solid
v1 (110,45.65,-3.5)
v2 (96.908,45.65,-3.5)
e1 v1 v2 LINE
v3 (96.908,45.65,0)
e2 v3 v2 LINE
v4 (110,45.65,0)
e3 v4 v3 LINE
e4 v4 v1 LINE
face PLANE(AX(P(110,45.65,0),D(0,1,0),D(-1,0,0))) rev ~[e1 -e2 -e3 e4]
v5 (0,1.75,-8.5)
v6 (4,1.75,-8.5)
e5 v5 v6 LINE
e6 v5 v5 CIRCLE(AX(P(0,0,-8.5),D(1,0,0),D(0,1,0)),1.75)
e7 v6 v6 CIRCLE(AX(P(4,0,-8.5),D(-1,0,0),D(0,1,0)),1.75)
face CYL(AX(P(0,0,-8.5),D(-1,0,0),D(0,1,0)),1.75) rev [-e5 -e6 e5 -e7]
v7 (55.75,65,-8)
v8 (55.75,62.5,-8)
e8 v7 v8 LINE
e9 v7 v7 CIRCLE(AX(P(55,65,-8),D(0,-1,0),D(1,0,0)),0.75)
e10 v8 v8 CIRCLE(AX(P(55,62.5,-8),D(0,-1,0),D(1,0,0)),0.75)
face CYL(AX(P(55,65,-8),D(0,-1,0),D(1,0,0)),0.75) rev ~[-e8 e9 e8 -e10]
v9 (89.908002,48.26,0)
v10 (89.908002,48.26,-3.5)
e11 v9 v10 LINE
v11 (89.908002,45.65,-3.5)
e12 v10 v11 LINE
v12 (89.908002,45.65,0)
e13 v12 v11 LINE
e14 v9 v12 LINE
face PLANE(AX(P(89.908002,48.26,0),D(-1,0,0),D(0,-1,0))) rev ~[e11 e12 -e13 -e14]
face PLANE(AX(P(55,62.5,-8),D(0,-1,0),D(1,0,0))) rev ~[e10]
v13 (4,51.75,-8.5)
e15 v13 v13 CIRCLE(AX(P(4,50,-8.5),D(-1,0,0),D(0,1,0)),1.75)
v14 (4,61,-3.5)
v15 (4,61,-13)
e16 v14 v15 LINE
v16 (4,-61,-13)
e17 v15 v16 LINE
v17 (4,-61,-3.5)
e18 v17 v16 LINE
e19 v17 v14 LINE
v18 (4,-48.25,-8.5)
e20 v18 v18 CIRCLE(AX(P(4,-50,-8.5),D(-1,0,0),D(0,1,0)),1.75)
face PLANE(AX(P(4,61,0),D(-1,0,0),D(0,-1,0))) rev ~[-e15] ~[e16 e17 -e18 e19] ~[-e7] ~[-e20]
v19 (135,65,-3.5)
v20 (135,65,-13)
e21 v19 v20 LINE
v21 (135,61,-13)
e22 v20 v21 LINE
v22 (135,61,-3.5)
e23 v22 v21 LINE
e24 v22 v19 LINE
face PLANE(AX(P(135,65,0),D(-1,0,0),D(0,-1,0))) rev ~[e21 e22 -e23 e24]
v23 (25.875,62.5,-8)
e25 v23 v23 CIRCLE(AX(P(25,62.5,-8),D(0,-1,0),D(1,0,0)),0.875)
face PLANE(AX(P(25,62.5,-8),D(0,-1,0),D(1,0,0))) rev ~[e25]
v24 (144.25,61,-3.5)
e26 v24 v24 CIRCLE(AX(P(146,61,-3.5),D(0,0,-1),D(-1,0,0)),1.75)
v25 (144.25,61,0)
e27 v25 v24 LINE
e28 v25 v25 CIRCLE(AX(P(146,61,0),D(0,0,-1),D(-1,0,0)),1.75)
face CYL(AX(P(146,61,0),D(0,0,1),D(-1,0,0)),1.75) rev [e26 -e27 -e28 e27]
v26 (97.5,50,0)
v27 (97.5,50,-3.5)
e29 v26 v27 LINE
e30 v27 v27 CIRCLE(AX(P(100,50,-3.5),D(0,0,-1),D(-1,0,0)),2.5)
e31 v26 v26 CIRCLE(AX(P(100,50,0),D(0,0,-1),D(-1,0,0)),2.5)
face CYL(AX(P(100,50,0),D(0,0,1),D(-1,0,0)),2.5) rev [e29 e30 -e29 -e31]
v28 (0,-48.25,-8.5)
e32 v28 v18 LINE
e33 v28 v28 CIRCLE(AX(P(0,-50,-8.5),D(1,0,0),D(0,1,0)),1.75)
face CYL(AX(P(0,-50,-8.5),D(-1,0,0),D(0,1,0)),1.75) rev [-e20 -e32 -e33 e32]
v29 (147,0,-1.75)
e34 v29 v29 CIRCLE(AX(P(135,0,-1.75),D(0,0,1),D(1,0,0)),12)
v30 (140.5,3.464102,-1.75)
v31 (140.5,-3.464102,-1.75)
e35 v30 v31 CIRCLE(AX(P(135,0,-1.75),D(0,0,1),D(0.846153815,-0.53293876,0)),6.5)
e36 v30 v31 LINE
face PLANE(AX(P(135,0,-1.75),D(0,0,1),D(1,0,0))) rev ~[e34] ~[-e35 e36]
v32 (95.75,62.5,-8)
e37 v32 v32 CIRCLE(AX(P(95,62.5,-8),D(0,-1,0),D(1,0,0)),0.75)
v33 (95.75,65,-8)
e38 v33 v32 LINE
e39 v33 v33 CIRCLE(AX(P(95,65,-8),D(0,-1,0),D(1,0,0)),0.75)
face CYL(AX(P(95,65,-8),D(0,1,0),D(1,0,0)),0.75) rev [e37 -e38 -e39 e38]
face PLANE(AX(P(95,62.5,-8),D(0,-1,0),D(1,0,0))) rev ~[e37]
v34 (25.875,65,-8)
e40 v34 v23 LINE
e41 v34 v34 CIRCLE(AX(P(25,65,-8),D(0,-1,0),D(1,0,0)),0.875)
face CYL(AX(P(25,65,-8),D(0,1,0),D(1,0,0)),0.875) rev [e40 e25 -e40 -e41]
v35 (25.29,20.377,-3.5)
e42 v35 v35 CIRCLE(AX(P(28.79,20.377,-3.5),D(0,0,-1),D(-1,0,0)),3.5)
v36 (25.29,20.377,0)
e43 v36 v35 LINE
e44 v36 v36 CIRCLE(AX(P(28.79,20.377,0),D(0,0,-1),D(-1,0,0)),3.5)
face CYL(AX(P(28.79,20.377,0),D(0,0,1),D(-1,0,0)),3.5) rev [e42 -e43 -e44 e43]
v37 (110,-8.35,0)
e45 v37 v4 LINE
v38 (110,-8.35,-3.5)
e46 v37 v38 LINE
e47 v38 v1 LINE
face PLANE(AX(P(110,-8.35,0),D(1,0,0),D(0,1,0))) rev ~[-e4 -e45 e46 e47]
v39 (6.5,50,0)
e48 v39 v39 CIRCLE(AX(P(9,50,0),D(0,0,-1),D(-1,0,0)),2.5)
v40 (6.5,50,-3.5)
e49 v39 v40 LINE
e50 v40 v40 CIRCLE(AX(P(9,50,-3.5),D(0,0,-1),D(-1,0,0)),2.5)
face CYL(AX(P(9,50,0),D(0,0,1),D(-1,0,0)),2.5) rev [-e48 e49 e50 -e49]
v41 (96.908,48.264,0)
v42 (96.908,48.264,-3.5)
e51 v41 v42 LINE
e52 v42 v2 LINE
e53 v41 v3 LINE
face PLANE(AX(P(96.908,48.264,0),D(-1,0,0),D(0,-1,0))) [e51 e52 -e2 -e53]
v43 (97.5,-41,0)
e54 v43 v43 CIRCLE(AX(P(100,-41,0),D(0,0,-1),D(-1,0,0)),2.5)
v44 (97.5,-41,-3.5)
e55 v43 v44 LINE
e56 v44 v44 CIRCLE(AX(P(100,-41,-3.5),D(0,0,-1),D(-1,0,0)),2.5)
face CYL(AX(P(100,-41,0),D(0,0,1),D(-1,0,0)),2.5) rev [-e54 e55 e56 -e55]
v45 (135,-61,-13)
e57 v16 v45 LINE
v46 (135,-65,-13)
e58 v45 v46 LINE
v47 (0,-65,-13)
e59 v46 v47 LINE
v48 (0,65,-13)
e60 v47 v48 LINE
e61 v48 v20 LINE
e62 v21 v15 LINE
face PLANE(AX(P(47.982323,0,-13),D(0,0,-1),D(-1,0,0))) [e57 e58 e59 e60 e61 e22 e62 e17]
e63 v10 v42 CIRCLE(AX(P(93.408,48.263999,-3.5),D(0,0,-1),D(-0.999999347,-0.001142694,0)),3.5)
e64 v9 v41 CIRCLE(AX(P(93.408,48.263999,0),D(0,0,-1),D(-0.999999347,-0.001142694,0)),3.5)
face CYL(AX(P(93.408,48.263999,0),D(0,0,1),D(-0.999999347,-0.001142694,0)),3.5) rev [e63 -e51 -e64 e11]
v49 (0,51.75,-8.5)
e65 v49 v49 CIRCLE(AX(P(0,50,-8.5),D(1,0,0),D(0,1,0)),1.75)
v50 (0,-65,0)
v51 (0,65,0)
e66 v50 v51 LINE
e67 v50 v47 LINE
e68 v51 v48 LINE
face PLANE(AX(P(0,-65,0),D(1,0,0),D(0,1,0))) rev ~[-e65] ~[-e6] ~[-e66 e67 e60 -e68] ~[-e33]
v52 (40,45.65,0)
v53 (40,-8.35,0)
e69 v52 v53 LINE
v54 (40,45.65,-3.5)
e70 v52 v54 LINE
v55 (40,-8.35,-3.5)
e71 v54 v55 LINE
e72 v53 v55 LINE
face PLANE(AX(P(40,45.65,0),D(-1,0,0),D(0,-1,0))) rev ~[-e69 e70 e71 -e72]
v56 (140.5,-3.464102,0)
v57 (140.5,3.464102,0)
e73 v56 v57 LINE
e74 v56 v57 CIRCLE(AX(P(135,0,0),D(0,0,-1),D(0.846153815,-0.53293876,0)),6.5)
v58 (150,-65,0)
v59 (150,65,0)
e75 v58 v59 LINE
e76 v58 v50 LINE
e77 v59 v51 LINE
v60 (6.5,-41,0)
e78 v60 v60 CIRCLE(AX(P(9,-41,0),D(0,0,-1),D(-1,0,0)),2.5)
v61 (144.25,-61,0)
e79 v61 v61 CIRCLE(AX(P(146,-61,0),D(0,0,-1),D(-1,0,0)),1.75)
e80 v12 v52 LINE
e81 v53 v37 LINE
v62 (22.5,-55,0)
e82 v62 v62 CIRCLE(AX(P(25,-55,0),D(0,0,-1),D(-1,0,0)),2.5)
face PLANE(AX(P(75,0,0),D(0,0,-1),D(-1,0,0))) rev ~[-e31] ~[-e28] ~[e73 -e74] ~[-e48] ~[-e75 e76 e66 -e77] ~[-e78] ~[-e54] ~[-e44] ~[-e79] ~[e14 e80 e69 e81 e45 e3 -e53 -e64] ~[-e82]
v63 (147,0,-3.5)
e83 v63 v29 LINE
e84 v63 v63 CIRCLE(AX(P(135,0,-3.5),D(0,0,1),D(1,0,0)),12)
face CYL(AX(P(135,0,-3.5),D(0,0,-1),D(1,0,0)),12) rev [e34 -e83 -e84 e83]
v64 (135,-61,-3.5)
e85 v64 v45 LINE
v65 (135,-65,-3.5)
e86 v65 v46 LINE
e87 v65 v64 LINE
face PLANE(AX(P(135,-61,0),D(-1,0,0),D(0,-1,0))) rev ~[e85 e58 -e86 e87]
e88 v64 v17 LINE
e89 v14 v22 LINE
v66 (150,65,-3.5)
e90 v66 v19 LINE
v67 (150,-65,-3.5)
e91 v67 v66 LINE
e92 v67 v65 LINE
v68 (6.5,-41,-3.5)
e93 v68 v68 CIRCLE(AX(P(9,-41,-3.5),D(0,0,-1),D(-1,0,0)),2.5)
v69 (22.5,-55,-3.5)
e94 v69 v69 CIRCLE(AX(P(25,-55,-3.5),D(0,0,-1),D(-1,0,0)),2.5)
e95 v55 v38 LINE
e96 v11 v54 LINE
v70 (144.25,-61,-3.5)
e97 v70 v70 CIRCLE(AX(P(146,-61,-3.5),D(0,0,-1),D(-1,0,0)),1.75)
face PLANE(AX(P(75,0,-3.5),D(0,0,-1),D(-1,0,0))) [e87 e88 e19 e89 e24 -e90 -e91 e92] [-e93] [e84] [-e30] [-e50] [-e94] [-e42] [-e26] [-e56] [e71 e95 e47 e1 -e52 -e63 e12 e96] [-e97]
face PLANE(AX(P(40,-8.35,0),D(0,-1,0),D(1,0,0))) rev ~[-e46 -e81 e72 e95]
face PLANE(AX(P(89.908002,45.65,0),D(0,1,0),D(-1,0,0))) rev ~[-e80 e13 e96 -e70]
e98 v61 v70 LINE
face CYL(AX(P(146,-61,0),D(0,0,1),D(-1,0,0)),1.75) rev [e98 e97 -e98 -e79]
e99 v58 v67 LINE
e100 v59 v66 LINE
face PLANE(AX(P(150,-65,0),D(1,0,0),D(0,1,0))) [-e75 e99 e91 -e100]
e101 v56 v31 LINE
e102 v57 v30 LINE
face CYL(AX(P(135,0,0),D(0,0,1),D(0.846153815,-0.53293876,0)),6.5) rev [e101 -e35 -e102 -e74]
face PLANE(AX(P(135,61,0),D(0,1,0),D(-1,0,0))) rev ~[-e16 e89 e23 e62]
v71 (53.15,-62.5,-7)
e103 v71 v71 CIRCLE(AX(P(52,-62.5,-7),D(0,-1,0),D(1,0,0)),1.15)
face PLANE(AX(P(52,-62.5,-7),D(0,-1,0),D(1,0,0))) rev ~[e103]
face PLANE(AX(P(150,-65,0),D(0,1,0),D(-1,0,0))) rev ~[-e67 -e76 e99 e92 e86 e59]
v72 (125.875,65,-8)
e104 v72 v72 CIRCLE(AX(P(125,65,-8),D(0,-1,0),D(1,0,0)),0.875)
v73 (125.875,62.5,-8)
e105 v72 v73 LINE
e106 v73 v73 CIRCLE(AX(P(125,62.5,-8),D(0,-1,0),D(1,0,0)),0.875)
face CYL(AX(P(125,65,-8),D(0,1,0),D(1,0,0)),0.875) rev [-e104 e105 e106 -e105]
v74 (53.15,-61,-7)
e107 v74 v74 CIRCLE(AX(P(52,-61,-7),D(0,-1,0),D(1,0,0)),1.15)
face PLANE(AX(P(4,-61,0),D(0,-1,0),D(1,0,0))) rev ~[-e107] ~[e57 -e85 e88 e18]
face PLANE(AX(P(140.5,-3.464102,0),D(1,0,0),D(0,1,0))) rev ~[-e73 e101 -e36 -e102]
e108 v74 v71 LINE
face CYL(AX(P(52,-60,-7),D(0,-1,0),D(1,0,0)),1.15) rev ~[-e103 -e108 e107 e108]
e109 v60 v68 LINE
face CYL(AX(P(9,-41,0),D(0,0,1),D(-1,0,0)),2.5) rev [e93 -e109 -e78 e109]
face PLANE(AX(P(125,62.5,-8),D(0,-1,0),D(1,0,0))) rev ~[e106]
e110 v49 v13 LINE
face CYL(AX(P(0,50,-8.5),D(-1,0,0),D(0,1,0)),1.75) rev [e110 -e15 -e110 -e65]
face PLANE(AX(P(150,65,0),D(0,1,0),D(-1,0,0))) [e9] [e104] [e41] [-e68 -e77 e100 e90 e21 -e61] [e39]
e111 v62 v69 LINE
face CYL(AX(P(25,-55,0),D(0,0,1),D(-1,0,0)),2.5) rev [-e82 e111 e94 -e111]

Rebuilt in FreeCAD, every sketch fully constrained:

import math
import FreeCAD as App
import Part
import Sketcher

V = App.Vector


def add_polygon(sketch, points):
    """Adds a closed chain of lines whose ends are joined by coincident constraints."""
    first, n = sketch.GeometryCount, len(points)
    for a, b in zip(points, points[1:] + points[:1]):
        sketch.addGeometry(Part.LineSegment(App.Vector(*a, 0), App.Vector(*b, 0)), False)
    for i in range(n):
        sketch.addConstraint(Sketcher.Constraint("Coincident", first + i, 2, first + (i + 1) % n, 1))

doc = App.newDocument("Part")
body = doc.addObject("PartDesign::Body", "Body")

sketch1 = doc.addObject("Sketcher::SketchObject", "Sketch")
body.addObject(sketch1)
sketch1.AttachmentSupport = (doc.XY_Plane, [""])
sketch1.MapMode = "FlatFace"
add_polygon(sketch1, [(150, 65), (150, -65), (0, -65), (0, 65)])
sketch1.addGeometry(Part.Circle(V(146, -61, 0), V(0, 0, 1), 1.8), False)
sketch1.addGeometry(Part.Circle(V(100, -41, 0), V(0, 0, 1), 2.5), False)
sketch1.addGeometry(Part.Circle(V(25, -55, 0), V(0, 0, 1), 2.5), False)
sketch1.addGeometry(Part.Circle(V(9, -41, 0), V(0, 0, 1), 2.5), False)
sketch1.addGeometry(Part.ArcOfCircle(Part.Circle(V(135, 0, 0), V(0, 0, 1), 6.5), math.radians(32), math.radians(328)), False)
sketch1.addGeometry(Part.LineSegment(V(140.5, -3.5, 0), V(140.5, 3.5, 0)), False)
sketch1.addGeometry(Part.Circle(V(146, 61, 0), V(0, 0, 1), 1.8), False)
sketch1.addGeometry(Part.Circle(V(100, 50, 0), V(0, 0, 1), 2.5), False)
sketch1.addGeometry(Part.LineSegment(V(40, 45.6, 0), V(40, -8.3, 0)), False)
sketch1.addGeometry(Part.LineSegment(V(40, -8.3, 0), V(110, -8.3, 0)), False)
sketch1.addGeometry(Part.LineSegment(V(110, -8.3, 0), V(110, 45.6, 0)), False)
sketch1.addGeometry(Part.LineSegment(V(110, 45.6, 0), V(96.9, 45.6, 0)), False)
sketch1.addGeometry(Part.LineSegment(V(96.9, 45.6, 0), V(96.9, 48.3, 0)), False)
sketch1.addGeometry(Part.ArcOfCircle(Part.Circle(V(93.4, 48.3, 0), V(0, 0, 1), 3.5), math.radians(0), math.radians(180)), False)
sketch1.addGeometry(Part.LineSegment(V(89.9, 48.3, 0), V(89.9, 45.6, 0)), False)
sketch1.addGeometry(Part.LineSegment(V(89.9, 45.6, 0), V(40, 45.6, 0)), False)
sketch1.addGeometry(Part.Circle(V(28.8, 20.4, 0), V(0, 0, 1), 3.5), False)
sketch1.addGeometry(Part.Circle(V(9, 50, 0), V(0, 0, 1), 2.5), False)
sketch1.addConstraint([
    Sketcher.Constraint("Coincident", 8, 1, 9, 2),
    Sketcher.Constraint("Coincident", 9, 1, 8, 2),
    Sketcher.Constraint("Coincident", 12, 2, 13, 1),
    Sketcher.Constraint("Coincident", 13, 2, 14, 1),
    Sketcher.Constraint("Coincident", 14, 2, 15, 1),
    Sketcher.Constraint("Coincident", 15, 2, 16, 1),
    Sketcher.Constraint("Tangent", 16, 2, 17, 1),
    Sketcher.Constraint("Coincident", 17, 2, 18, 1),
    Sketcher.Constraint("Coincident", 18, 2, 19, 1),
    Sketcher.Constraint("Coincident", 19, 2, 12, 1),
    Sketcher.Constraint("Vertical", 0),
    Sketcher.Constraint("Horizontal", 1),
    Sketcher.Constraint("Vertical", 2),
    Sketcher.Constraint("Horizontal", 3),
    Sketcher.Constraint("Vertical", 9),
    Sketcher.Constraint("Vertical", 12),
    Sketcher.Constraint("Horizontal", 13),
    Sketcher.Constraint("Vertical", 14),
    Sketcher.Constraint("Horizontal", 15),
    Sketcher.Constraint("Vertical", 16),
    Sketcher.Constraint("Vertical", 18),
    Sketcher.Constraint("Horizontal", 19),
    Sketcher.Constraint("Equal", 5, 6),
    Sketcher.Constraint("Equal", 6, 7),
    Sketcher.Constraint("Equal", 4, 10),
    Sketcher.Constraint("Equal", 7, 11),
    Sketcher.Constraint("Equal", 17, 20),
    Sketcher.Constraint("Equal", 11, 21),
    Sketcher.Constraint("Symmetric", 1, 2, 2, 2, -1, 1),
    Sketcher.Constraint("Symmetric", 4, 3, 10, 3, -1),
    Sketcher.Constraint("PointOnObject", 8, 3, -1),
    Sketcher.Constraint("Horizontal", 5, 3, 7, 3),
    Sketcher.Constraint("Horizontal", 11, 3, 21, 3),
    Sketcher.Constraint("Horizontal", 15, 2, 18, 2),
    Sketcher.Constraint("Vertical", 5, 3, 11, 3),
    Sketcher.Constraint("Vertical", 7, 3, 21, 3),
    Sketcher.Constraint("Diameter", 5, 5.0),
    Sketcher.Constraint("Diameter", 20, 7.0),
    Sketcher.Constraint("Diameter", 4, 3.5),
    Sketcher.Constraint("Radius", 8, 6.5),
    Sketcher.Constraint("DistanceX", 1, 2, 1, 1, 150.0),
    Sketcher.Constraint("DistanceX", 13, 1, 13, 2, 70.0),
    Sketcher.Constraint("DistanceY", 0, 2, 0, 1, 130.0),
    Sketcher.Constraint("DistanceY", 12, 2, 12, 1, 54.0),
    Sketcher.Constraint("DistanceX", -1, 1, 4, 3, 146.0),
    Sketcher.Constraint("DistanceY", 4, 3, -1, 1, 61.0),
    Sketcher.Constraint("DistanceX", -1, 1, 5, 3, 100.0),
    Sketcher.Constraint("DistanceY", 5, 3, -1, 1, 41.0),
    Sketcher.Constraint("DistanceX", -1, 1, 6, 3, 25.0),
    Sketcher.Constraint("DistanceY", 6, 3, -1, 1, 55.0),
    Sketcher.Constraint("DistanceX", -1, 1, 7, 3, 9.0),
    Sketcher.Constraint("DistanceX", -1, 1, 8, 3, 135.0),
    Sketcher.Constraint("DistanceY", -1, 1, 11, 3, 50.0),
    Sketcher.Constraint("DistanceX", -1, 1, 12, 2, 40.0),
    Sketcher.Constraint("DistanceY", 18, 2, 18, 1, 2.61),
    Sketcher.Constraint("DistanceX", -1, 1, 8, 1, 140.5),
    Sketcher.Constraint("DistanceX", 15, 2, 15, 1, 13.092),
    Sketcher.Constraint("DistanceY", 16, 1, 16, 2, 2.614),
    Sketcher.Constraint("DistanceX", -1, 1, 20, 3, 28.79),
    Sketcher.Constraint("DistanceY", 12, 2, -1, 1, 8.35),
    Sketcher.Constraint("DistanceY", -1, 1, 20, 3, 20.377),
])
pad1 = doc.addObject("PartDesign::Pad", "Pad")
body.addObject(pad1)
pad1.Profile = sketch1
pad1.Length = 3.5
pad1.Reversed = True

sketch2 = doc.addObject("Sketcher::SketchObject", "Sketch001")
body.addObject(sketch2)
sketch2.AttachmentSupport = (doc.XY_Plane, [""])
sketch2.MapMode = "FlatFace"
add_polygon(sketch2, [(135, 61), (135, 65), (0, 65), (0, -65), (135, -65), (135, -61), (4, -61), (4, 61)])
sketch2.addConstraint([
    Sketcher.Constraint("Vertical", 0),
    Sketcher.Constraint("Horizontal", 1),
    Sketcher.Constraint("Vertical", 2),
    Sketcher.Constraint("Horizontal", 3),
    Sketcher.Constraint("Vertical", 4),
    Sketcher.Constraint("Horizontal", 5),
    Sketcher.Constraint("Vertical", 6),
    Sketcher.Constraint("Horizontal", 7),
    Sketcher.Constraint("Symmetric", 1, 2, 2, 2, -1, 1),
    Sketcher.Constraint("Symmetric", 4, 2, 7, 2, -1),
    Sketcher.Constraint("DistanceX", 1, 2, 1, 1, 135.0),
    Sketcher.Constraint("DistanceX", 5, 2, 5, 1, 131.0),
    Sketcher.Constraint("DistanceY", 0, 1, 0, 2, 4.0),
    Sketcher.Constraint("DistanceY", 2, 2, 2, 1, 130.0),
])
pad2 = doc.addObject("PartDesign::Pad", "Pad001")
body.addObject(pad2)
pad2.Profile = sketch2
pad2.Length = 13
pad2.Reversed = True

sketch3 = doc.addObject("Sketcher::SketchObject", "Sketch002")
body.addObject(sketch3)
sketch3.AttachmentSupport = (doc.YZ_Plane, [""])
sketch3.MapMode = "FlatFace"
sketch3.addGeometry([
    Part.Circle(V(0, -8.5, 0), V(0, 0, 1), 1.8),
    Part.Circle(V(50, -8.5, 0), V(0, 0, 1), 1.8),
    Part.Circle(V(-50, -8.5, 0), V(0, 0, 1), 1.8),
], False)
sketch3.addConstraint([
    Sketcher.Constraint("Equal", 0, 1),
    Sketcher.Constraint("Equal", 1, 2),
    Sketcher.Constraint("Symmetric", 1, 3, 2, 3, -2),
    Sketcher.Constraint("PointOnObject", 0, 3, -2),
    Sketcher.Constraint("Horizontal", 0, 3, 1, 3),
    Sketcher.Constraint("Diameter", 0, 3.5),
    Sketcher.Constraint("DistanceX", -1, 1, 1, 3, 50.0),
    Sketcher.Constraint("DistanceY", 0, 3, -1, 1, 8.5),
])
pocket1 = doc.addObject("PartDesign::Pocket", "Pocket")
body.addObject(pocket1)
pocket1.Profile = sketch3
pocket1.Length = 5
pocket1.Reversed = True

sketch4 = doc.addObject("Sketcher::SketchObject", "Sketch003")
body.addObject(sketch4)
sketch4.AttachmentSupport = (doc.XZ_Plane, [""])
sketch4.MapMode = "FlatFace"
sketch4.AttachmentOffset = App.Placement(V(0, 0, 60), App.Rotation())
sketch4.addGeometry(Part.Circle(V(52, -7, 0), V(0, 0, 1), 1.1), False)
sketch4.addConstraint([
    Sketcher.Constraint("Diameter", 0, 2.3),
    Sketcher.Constraint("DistanceX", -1, 1, 0, 3, 52.0),
    Sketcher.Constraint("DistanceY", 0, 3, -1, 1, 7.0),
])
pocket2 = doc.addObject("PartDesign::Pocket", "Pocket001")
body.addObject(pocket2)
pocket2.Profile = sketch4
pocket2.Length = 5
pocket2.Midplane = True

sketch5 = doc.addObject("Sketcher::SketchObject", "Sketch004")
body.addObject(sketch5)
sketch5.AttachmentSupport = (doc.XZ_Plane, [""])
sketch5.MapMode = "FlatFace"
sketch5.AttachmentOffset = App.Placement(V(0, 0, -65), App.Rotation())
sketch5.addGeometry([
    Part.Circle(V(25, -8, 0), V(0, 0, 1), 0.9),
    Part.Circle(V(125, -8, 0), V(0, 0, 1), 0.9),
    Part.Circle(V(95, -8, 0), V(0, 0, 1), 0.8),
    Part.Circle(V(55, -8, 0), V(0, 0, 1), 0.8),
], False)
sketch5.addConstraint([
    Sketcher.Constraint("Equal", 0, 1),
    Sketcher.Constraint("Equal", 2, 3),
    Sketcher.Constraint("Horizontal", 0, 3, 1, 3),
    Sketcher.Constraint("Horizontal", 1, 3, 2, 3),
    Sketcher.Constraint("Horizontal", 2, 3, 3, 3),
    Sketcher.Constraint("Diameter", 2, 1.5),
    Sketcher.Constraint("Diameter", 0, 1.75),
    Sketcher.Constraint("DistanceX", -1, 1, 0, 3, 25.0),
    Sketcher.Constraint("DistanceY", 0, 3, -1, 1, 8.0),
    Sketcher.Constraint("DistanceX", -1, 1, 1, 3, 125.0),
    Sketcher.Constraint("DistanceX", -1, 1, 2, 3, 95.0),
    Sketcher.Constraint("DistanceX", -1, 1, 3, 3, 55.0),
])
pocket3 = doc.addObject("PartDesign::Pocket", "Pocket002")
body.addObject(pocket3)
pocket3.Profile = sketch5
pocket3.Length = 5
pocket3.Midplane = True

sketch6 = doc.addObject("Sketcher::SketchObject", "Sketch005")
body.addObject(sketch6)
sketch6.AttachmentSupport = (doc.XY_Plane, [""])
sketch6.MapMode = "FlatFace"
sketch6.AttachmentOffset = App.Placement(V(0, 0, -3.5), App.Rotation())
sketch6.addGeometry(Part.Circle(V(135, 0, 0), V(0, 0, 1), 12), False)
sketch6.addConstraint([
    Sketcher.Constraint("PointOnObject", 0, 3, -1),
    Sketcher.Constraint("Diameter", 0, 24.0),
    Sketcher.Constraint("DistanceX", -1, 1, 0, 3, 135.0),
])
pocket4 = doc.addObject("PartDesign::Pocket", "Pocket003")
body.addObject(pocket4)
pocket4.Profile = sketch6
pocket4.Length = 1.75
pocket4.Reversed = True

doc.recompute()
